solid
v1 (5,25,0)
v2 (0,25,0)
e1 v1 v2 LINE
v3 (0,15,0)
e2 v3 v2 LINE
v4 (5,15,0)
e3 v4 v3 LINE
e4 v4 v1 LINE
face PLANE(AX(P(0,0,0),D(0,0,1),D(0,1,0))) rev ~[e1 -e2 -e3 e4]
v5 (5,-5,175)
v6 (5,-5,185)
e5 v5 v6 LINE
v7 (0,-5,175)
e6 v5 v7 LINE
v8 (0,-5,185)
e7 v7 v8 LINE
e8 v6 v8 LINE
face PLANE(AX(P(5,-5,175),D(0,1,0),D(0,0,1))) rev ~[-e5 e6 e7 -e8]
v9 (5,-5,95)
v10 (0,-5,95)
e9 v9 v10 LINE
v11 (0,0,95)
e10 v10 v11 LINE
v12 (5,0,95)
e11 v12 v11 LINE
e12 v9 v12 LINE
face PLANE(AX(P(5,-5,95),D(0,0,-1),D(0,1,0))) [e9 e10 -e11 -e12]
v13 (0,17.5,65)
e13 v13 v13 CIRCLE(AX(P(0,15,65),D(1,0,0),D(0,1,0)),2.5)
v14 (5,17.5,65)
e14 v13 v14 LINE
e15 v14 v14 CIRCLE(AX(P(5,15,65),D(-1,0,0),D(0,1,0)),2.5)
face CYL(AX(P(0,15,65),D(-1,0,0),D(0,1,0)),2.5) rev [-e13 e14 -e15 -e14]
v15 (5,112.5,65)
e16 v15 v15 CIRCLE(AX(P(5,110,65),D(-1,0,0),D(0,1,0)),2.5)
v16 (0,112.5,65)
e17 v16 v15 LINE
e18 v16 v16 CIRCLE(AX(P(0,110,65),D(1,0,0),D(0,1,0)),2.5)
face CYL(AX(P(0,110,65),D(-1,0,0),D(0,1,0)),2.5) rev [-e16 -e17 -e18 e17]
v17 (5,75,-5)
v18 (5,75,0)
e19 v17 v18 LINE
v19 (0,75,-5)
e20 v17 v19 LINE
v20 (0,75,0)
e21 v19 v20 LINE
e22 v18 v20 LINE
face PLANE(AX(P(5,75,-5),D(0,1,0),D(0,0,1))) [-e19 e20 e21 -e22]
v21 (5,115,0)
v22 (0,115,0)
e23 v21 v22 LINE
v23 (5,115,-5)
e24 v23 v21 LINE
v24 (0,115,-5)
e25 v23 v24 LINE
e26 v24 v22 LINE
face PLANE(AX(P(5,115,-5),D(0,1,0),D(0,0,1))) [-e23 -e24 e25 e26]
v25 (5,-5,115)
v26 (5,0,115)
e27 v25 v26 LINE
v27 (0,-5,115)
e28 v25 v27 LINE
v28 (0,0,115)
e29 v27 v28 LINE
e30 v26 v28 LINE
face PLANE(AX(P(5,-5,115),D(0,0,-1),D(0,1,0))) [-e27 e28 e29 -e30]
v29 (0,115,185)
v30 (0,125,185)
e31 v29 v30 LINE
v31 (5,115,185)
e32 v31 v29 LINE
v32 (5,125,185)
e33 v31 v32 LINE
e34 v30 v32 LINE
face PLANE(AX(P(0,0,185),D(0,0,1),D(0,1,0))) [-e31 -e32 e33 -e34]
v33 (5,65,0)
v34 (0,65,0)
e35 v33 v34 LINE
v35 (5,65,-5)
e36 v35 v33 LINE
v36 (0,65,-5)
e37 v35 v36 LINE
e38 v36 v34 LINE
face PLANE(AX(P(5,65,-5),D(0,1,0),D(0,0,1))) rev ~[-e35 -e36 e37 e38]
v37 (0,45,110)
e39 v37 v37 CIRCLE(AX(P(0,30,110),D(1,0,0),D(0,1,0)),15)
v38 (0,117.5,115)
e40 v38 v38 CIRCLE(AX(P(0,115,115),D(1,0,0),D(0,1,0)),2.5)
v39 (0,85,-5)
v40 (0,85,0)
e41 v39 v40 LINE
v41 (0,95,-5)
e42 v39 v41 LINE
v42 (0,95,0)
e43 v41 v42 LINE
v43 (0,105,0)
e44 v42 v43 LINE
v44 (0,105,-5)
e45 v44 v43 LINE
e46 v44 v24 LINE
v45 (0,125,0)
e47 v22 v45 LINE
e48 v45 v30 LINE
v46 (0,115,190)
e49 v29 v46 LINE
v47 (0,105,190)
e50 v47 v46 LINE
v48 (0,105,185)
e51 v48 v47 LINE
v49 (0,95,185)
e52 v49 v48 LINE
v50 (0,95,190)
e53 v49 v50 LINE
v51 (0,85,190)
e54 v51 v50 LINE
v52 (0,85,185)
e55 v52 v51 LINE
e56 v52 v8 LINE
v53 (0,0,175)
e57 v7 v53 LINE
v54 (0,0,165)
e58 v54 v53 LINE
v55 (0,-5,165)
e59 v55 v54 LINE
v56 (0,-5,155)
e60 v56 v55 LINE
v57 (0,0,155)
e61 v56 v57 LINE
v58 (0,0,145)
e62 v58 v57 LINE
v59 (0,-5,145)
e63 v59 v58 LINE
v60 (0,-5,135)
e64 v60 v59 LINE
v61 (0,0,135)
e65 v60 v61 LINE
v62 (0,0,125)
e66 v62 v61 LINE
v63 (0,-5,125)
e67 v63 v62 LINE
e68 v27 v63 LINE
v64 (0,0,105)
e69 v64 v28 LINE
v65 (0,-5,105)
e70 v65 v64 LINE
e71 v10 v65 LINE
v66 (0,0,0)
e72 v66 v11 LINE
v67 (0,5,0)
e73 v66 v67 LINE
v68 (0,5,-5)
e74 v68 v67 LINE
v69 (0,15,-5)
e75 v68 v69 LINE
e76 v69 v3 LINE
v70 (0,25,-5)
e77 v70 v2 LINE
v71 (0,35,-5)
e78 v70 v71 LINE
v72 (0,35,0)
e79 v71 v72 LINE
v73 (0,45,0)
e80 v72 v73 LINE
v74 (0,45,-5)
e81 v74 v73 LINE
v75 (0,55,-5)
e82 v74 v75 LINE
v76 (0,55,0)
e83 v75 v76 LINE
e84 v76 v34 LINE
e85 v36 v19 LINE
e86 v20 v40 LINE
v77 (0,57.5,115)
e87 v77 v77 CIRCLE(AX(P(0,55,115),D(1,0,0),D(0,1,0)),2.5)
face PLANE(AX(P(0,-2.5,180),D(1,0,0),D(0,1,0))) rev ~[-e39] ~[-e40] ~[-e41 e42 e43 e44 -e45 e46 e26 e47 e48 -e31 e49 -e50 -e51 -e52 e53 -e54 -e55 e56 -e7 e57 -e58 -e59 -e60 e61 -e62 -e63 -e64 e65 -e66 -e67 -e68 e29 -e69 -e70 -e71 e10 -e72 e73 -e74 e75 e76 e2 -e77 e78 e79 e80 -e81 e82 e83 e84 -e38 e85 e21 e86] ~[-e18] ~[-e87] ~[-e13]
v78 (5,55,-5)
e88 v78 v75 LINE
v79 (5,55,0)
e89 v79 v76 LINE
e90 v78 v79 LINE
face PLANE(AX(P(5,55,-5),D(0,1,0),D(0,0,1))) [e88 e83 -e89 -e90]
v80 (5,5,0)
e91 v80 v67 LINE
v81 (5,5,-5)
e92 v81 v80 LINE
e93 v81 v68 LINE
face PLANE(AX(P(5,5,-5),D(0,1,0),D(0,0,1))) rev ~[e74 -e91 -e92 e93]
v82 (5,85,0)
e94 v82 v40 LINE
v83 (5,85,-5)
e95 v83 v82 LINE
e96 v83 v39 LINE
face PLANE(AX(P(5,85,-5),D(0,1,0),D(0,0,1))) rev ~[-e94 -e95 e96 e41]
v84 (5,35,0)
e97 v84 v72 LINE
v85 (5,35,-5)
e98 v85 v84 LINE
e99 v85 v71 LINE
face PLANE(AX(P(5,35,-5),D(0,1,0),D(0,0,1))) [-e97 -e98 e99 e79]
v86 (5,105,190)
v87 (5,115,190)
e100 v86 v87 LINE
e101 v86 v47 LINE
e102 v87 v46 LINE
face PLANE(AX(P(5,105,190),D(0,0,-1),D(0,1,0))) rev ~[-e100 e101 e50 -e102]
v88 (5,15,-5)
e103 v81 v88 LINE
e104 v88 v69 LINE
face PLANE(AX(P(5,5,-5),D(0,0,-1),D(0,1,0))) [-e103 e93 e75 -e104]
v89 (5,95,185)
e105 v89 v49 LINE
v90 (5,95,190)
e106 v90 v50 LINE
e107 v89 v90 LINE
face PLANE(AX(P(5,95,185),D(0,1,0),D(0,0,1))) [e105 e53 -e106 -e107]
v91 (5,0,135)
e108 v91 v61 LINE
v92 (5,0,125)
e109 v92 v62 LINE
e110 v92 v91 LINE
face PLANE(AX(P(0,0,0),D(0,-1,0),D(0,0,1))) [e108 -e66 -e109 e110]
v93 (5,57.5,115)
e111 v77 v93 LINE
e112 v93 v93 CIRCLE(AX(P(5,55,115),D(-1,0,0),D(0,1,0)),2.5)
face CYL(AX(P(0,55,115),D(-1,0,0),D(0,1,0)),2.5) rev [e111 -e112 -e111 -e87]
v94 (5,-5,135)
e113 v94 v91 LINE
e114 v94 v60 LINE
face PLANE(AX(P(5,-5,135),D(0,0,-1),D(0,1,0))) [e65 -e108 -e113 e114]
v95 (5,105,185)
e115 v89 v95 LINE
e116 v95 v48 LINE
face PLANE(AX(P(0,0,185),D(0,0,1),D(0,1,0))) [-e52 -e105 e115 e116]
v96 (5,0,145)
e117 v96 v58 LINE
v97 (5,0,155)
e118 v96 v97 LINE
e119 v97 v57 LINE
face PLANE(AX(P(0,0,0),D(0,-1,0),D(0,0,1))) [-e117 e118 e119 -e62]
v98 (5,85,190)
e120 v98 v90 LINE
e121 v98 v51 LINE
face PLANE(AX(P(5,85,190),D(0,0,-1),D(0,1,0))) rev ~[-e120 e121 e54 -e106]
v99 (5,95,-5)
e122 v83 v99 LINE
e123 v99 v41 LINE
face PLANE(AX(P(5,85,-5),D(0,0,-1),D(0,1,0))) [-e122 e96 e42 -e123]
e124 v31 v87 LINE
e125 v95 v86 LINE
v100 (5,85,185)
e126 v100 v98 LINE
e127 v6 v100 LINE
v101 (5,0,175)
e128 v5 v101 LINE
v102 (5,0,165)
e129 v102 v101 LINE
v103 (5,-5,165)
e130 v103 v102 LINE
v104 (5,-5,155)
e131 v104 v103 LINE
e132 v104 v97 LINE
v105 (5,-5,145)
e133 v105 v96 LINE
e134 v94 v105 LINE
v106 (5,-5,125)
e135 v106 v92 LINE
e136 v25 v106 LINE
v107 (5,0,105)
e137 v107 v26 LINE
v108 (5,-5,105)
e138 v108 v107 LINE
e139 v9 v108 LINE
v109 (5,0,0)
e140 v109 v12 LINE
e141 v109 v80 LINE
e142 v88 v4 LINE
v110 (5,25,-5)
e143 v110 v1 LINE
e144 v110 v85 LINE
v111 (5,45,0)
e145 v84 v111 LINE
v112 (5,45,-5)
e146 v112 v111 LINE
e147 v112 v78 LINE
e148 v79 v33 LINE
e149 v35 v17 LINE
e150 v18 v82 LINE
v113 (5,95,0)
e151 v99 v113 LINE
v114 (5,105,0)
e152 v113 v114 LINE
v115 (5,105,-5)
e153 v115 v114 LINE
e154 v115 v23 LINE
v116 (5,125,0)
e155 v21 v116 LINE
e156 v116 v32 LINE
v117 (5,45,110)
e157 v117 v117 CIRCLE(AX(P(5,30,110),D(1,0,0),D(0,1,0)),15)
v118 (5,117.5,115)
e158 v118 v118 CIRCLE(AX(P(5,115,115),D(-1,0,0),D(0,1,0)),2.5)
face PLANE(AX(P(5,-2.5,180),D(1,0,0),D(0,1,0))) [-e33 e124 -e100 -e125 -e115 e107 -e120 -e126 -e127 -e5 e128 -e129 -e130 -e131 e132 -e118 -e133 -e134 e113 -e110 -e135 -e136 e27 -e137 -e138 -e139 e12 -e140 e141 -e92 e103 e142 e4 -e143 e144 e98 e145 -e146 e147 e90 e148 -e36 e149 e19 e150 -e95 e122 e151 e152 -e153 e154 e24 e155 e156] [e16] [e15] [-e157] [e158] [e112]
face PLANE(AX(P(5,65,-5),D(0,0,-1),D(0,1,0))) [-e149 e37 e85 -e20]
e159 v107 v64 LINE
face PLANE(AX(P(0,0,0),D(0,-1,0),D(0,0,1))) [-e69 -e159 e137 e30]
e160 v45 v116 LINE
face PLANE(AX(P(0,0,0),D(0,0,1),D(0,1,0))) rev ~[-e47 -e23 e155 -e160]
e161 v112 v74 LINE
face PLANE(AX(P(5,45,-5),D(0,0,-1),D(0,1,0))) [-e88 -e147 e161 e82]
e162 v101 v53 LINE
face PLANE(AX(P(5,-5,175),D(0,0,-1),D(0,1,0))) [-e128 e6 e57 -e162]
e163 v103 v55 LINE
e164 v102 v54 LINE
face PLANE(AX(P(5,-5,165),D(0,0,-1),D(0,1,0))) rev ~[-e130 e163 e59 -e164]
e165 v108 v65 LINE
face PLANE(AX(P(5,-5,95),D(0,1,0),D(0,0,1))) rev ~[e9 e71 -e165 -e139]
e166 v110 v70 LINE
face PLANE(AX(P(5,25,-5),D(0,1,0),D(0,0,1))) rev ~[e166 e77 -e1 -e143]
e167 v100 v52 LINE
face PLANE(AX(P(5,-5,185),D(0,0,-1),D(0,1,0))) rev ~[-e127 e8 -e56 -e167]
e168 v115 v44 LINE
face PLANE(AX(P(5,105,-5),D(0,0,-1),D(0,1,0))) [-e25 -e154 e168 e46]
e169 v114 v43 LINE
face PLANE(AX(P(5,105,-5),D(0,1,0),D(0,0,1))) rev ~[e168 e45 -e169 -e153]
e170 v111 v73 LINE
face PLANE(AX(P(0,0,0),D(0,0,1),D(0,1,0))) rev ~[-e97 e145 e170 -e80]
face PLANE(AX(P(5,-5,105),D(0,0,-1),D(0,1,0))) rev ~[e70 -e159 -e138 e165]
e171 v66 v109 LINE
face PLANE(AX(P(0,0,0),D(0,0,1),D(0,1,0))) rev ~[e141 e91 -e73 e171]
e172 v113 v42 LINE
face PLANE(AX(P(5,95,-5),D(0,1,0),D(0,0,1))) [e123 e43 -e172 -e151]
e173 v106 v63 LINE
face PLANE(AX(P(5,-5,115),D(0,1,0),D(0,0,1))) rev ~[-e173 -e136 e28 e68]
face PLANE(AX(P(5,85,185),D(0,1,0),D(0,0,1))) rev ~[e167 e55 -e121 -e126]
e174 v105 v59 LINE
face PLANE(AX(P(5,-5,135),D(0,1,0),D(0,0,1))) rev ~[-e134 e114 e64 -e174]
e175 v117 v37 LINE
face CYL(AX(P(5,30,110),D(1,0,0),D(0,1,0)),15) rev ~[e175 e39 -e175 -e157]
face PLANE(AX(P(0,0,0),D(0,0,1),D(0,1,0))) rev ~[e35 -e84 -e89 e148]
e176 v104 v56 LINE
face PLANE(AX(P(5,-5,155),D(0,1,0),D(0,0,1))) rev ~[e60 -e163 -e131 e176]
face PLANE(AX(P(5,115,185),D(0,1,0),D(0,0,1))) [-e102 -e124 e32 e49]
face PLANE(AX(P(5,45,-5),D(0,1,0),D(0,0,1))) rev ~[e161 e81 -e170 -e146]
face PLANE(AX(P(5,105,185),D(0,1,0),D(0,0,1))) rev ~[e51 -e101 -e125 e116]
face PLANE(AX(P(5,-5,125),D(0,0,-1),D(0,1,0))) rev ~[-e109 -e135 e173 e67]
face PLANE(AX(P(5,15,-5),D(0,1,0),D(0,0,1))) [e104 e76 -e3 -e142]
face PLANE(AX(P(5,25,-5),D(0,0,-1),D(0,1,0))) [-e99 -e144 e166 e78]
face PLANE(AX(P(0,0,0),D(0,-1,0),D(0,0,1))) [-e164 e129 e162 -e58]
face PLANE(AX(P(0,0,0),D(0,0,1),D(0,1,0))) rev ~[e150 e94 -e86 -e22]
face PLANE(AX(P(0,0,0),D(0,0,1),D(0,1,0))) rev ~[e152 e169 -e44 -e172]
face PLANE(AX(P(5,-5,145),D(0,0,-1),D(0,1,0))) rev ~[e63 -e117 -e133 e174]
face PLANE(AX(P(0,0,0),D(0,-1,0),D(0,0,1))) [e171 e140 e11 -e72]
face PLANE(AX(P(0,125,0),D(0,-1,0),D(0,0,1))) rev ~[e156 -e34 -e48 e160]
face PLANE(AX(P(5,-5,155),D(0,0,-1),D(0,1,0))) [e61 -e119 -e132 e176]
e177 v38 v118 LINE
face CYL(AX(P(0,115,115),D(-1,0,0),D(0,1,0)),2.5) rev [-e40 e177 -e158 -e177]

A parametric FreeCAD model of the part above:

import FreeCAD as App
import Part
import Sketcher

V = App.Vector


def add_polygon(sketch, points):
    """Adds a closed chain of lines whose ends are joined by coincident constraints."""
    first, n = sketch.GeometryCount, len(points)
    for a, b in zip(points, points[1:] + points[:1]):
        sketch.addGeometry(Part.LineSegment(App.Vector(*a, 0), App.Vector(*b, 0)), False)
    for i in range(n):
        sketch.addConstraint(Sketcher.Constraint("Coincident", first + i, 2, first + (i + 1) % n, 1))

doc = App.newDocument("Part")
body = doc.addObject("PartDesign::Body", "Body")

# Sketch on YZ plane
sketch1 = body.newObject("Sketcher::SketchObject", "Sketch")
sketch1.AttachmentSupport = (doc.getObject("YZ_Plane"), [""])
sketch1.MapMode = "FlatFace"
add_polygon(sketch1, [(0, 185), (0, 0), (125, 0), (125, 185)])  # lines 0-3
sketch1.addConstraint([
    Sketcher.Constraint("Vertical", 0),
    Sketcher.Constraint("Horizontal", 1),
    Sketcher.Constraint("Vertical", 2),
    Sketcher.Constraint("Horizontal", 3),
    Sketcher.Constraint("Coincident", 0, 2, -1, 1),
    Sketcher.Constraint("DistanceX", 1, 1, 1, 2, 125.0),
    Sketcher.Constraint("DistanceY", 0, 2, 0, 1, 185.0),
])
pad1 = body.newObject("PartDesign::Pad", "Pad")
pad1.Profile = sketch1
pad1.Length = 5

# Sketch on YZ plane
sketch2 = body.newObject("Sketcher::SketchObject", "Sketch001")
sketch2.AttachmentSupport = (doc.getObject("YZ_Plane"), [""])
sketch2.MapMode = "FlatFace"
sketch2.AttachmentOffset = App.Placement(V(0, 0, 5), App.Rotation())
add_polygon(sketch2, [(105, 190), (105, 185), (115, 185), (115, 190)])  # lines 0-3
add_polygon(sketch2, [(85, 190), (85, 185), (95, 185), (95, 190)])  # lines 4-7
sketch2.addConstraint([
    Sketcher.Constraint("Vertical", 0),
    Sketcher.Constraint("Horizontal", 1),
    Sketcher.Constraint("Vertical", 2),
    Sketcher.Constraint("Horizontal", 3),
    Sketcher.Constraint("Vertical", 4),
    Sketcher.Constraint("Horizontal", 5),
    Sketcher.Constraint("Vertical", 6),
    Sketcher.Constraint("Horizontal", 7),
    Sketcher.Constraint("Horizontal", 1, 2, 4, 2),
    Sketcher.Constraint("Horizontal", 3, 2, 6, 2),
    Sketcher.Constraint("Equal", 3, 5),
    Sketcher.Constraint("DistanceX", 1, 1, 1, 2, 10.0),
    Sketcher.Constraint("DistanceY", 0, 2, 0, 1, 5.0),
    Sketcher.Constraint("DistanceX", -1, 1, 0, 2, 105.0),
    Sketcher.Constraint("DistanceY", -1, 1, 0, 2, 185.0),
    Sketcher.Constraint("DistanceX", -1, 1, 4, 2, 85.0),
])
pad2 = body.newObject("PartDesign::Pad", "Pad001")
pad2.Profile = sketch2
pad2.Length = 5
pad2.Reversed = True

# Sketch on YZ plane
sketch3 = body.newObject("Sketcher::SketchObject", "Sketch002")
sketch3.AttachmentSupport = (doc.getObject("YZ_Plane"), [""])
sketch3.MapMode = "FlatFace"
sketch3.AttachmentOffset = App.Placement(V(0, 0, 5), App.Rotation())
add_polygon(sketch3, [(5, 0), (5, -5), (15, -5), (15, 0)])  # lines 0-3
add_polygon(sketch3, [(25, 0), (25, -5), (35, -5), (35, 0)])  # lines 4-7
add_polygon(sketch3, [(45, 0), (45, -5), (55, -5), (55, 0)])  # lines 8-11
add_polygon(sketch3, [(65, 0), (65, -5), (75, -5), (75, 0)])  # lines 12-15
add_polygon(sketch3, [(85, 0), (85, -5), (95, -5), (95, 0)])  # lines 16-19
add_polygon(sketch3, [(105, 0), (105, -5), (115, -5), (115, 0)])  # lines 20-23
sketch3.addConstraint([
    Sketcher.Constraint("Vertical", 0),
    Sketcher.Constraint("Horizontal", 1),
    Sketcher.Constraint("Vertical", 2),
    Sketcher.Constraint("Horizontal", 3),
    Sketcher.Constraint("Vertical", 4),
    Sketcher.Constraint("Horizontal", 5),
    Sketcher.Constraint("Vertical", 6),
    Sketcher.Constraint("Horizontal", 7),
    Sketcher.Constraint("Vertical", 8),
    Sketcher.Constraint("Horizontal", 9),
    Sketcher.Constraint("Vertical", 10),
    Sketcher.Constraint("Horizontal", 11),
    Sketcher.Constraint("Vertical", 12),
    Sketcher.Constraint("Horizontal", 13),
    Sketcher.Constraint("Vertical", 14),
    Sketcher.Constraint("Horizontal", 15),
    Sketcher.Constraint("Vertical", 16),
    Sketcher.Constraint("Horizontal", 17),
    Sketcher.Constraint("Vertical", 18),
    Sketcher.Constraint("Horizontal", 19),
    Sketcher.Constraint("Vertical", 20),
    Sketcher.Constraint("Horizontal", 21),
    Sketcher.Constraint("Vertical", 22),
    Sketcher.Constraint("Horizontal", 23),
    Sketcher.Constraint("PointOnObject", 2, 2, -1),
    Sketcher.Constraint("PointOnObject", 6, 2, -1),
    Sketcher.Constraint("PointOnObject", 10, 2, -1),
    Sketcher.Constraint("PointOnObject", 14, 2, -1),
    Sketcher.Constraint("PointOnObject", 18, 2, -1),
    Sketcher.Constraint("PointOnObject", 22, 2, -1),
    Sketcher.Constraint("Horizontal", 1, 2, 4, 2),
    Sketcher.Constraint("Horizontal", 5, 2, 8, 2),
    Sketcher.Constraint("Horizontal", 9, 2, 12, 2),
    Sketcher.Constraint("Horizontal", 13, 2, 16, 2),
    Sketcher.Constraint("Horizontal", 17, 2, 20, 2),
    Sketcher.Constraint("Equal", 3, 5),
    Sketcher.Constraint("Equal", 7, 9),
    Sketcher.Constraint("Equal", 11, 13),
    Sketcher.Constraint("Equal", 15, 17),
    Sketcher.Constraint("Equal", 19, 21),
    Sketcher.Constraint("DistanceX", 1, 1, 1, 2, 10.0),
    Sketcher.Constraint("DistanceY", 0, 2, 0, 1, 5.0),
    Sketcher.Constraint("DistanceX", -1, 1, 0, 2, 5.0),
    Sketcher.Constraint("DistanceX", -1, 1, 4, 2, 25.0),
    Sketcher.Constraint("DistanceX", -1, 1, 8, 2, 45.0),
    Sketcher.Constraint("DistanceX", -1, 1, 12, 2, 65.0),
    Sketcher.Constraint("DistanceX", -1, 1, 16, 2, 85.0),
    Sketcher.Constraint("DistanceX", -1, 1, 20, 2, 105.0),
])
pad3 = body.newObject("PartDesign::Pad", "Pad002")
pad3.Profile = sketch3
pad3.Length = 5
pad3.Reversed = True

# Sketch on YZ plane
sketch4 = body.newObject("Sketcher::SketchObject", "Sketch003")
sketch4.AttachmentSupport = (doc.getObject("YZ_Plane"), [""])
sketch4.MapMode = "FlatFace"
sketch4.AttachmentOffset = App.Placement(V(0, 0, 5), App.Rotation())
add_polygon(sketch4, [(-5, 185), (-5, 175), (0, 175), (0, 185)])  # lines 0-3
add_polygon(sketch4, [(-5, 165), (-5, 155), (0, 155), (0, 165)])  # lines 4-7
add_polygon(sketch4, [(-5, 145), (-5, 135), (0, 135), (0, 145)])  # lines 8-11
add_polygon(sketch4, [(-5, 125), (-5, 115), (0, 115), (0, 125)])  # lines 12-15
add_polygon(sketch4, [(-5, 105), (-5, 95), (0, 95), (0, 105)])  # lines 16-19
sketch4.addConstraint([
    Sketcher.Constraint("Vertical", 0),
    Sketcher.Constraint("Horizontal", 1),
    Sketcher.Constraint("Vertical", 2),
    Sketcher.Constraint("Horizontal", 3),
    Sketcher.Constraint("Vertical", 4),
    Sketcher.Constraint("Horizontal", 5),
    Sketcher.Constraint("Vertical", 6),
    Sketcher.Constraint("Horizontal", 7),
    Sketcher.Constraint("Vertical", 8),
    Sketcher.Constraint("Horizontal", 9),
    Sketcher.Constraint("Vertical", 10),
    Sketcher.Constraint("Horizontal", 11),
    Sketcher.Constraint("Vertical", 12),
    Sketcher.Constraint("Horizontal", 13),
    Sketcher.Constraint("Vertical", 14),
    Sketcher.Constraint("Horizontal", 15),
    Sketcher.Constraint("Vertical", 16),
    Sketcher.Constraint("Horizontal", 17),
    Sketcher.Constraint("Vertical", 18),
    Sketcher.Constraint("Horizontal", 19),
    Sketcher.Constraint("PointOnObject", 1, 2, -2),
    Sketcher.Constraint("PointOnObject", 5, 2, -2),
    Sketcher.Constraint("PointOnObject", 9, 2, -2),
    Sketcher.Constraint("PointOnObject", 13, 2, -2),
    Sketcher.Constraint("PointOnObject", 17, 2, -2),
    Sketcher.Constraint("Vertical", 3, 2, 4, 2),
    Sketcher.Constraint("Vertical", 7, 2, 8, 2),
    Sketcher.Constraint("Vertical", 11, 2, 12, 2),
    Sketcher.Constraint("Vertical", 15, 2, 16, 2),
    Sketcher.Constraint("Equal", 2, 4),
    Sketcher.Constraint("Equal", 6, 8),
    Sketcher.Constraint("Equal", 10, 12),
    Sketcher.Constraint("Equal", 14, 16),
    Sketcher.Constraint("DistanceX", 1, 1, 1, 2, 5.0),
    Sketcher.Constraint("DistanceY", 0, 2, 0, 1, 10.0),
    Sketcher.Constraint("DistanceY", -1, 1, 0, 2, 175.0),
    Sketcher.Constraint("DistanceY", -1, 1, 4, 2, 155.0),
    Sketcher.Constraint("DistanceY", -1, 1, 8, 2, 135.0),
    Sketcher.Constraint("DistanceY", -1, 1, 12, 2, 115.0),
    Sketcher.Constraint("DistanceY", -1, 1, 16, 2, 95.0),
])
pad4 = body.newObject("PartDesign::Pad", "Pad003")
pad4.Profile = sketch4
pad4.Length = 5
pad4.Reversed = True

# Sketch on YZ plane
sketch5 = body.newObject("Sketcher::SketchObject", "Sketch004")
sketch5.AttachmentSupport = (doc.getObject("YZ_Plane"), [""])
sketch5.MapMode = "FlatFace"
sketch5.AttachmentOffset = App.Placement(V(0, 0, 5), App.Rotation())
sketch5.addGeometry(Part.Circle(V(30, 110, 0), V(0, 0, 1), 15), False)
sketch5.addConstraint([
    Sketcher.Constraint("Diameter", 0, 30.0),
    Sketcher.Constraint("DistanceX", -1, 1, 0, 3, 30.0),
    Sketcher.Constraint("DistanceY", -1, 1, 0, 3, 110.0),
])
pocket1 = body.newObject("PartDesign::Pocket", "Pocket")
pocket1.Profile = sketch5
pocket1.Type = "ThroughAll"

# Sketch on YZ plane
sketch6 = body.newObject("Sketcher::SketchObject", "Sketch005")
sketch6.AttachmentSupport = (doc.getObject("YZ_Plane"), [""])
sketch6.MapMode = "FlatFace"
sketch6.addGeometry([
    Part.Circle(V(15, 65, 0), V(0, 0, 1), 2.5),
    Part.Circle(V(110, 65, 0), V(0, 0, 1), 2.5),
], False)
sketch6.addConstraint([
    Sketcher.Constraint("Equal", 0, 1),
    Sketcher.Constraint("Horizontal", 0, 3, 1, 3),
    Sketcher.Constraint("Diameter", 0, 5.0),
    Sketcher.Constraint("DistanceX", -1, 1, 0, 3, 15.0),
    Sketcher.Constraint("DistanceY", -1, 1, 0, 3, 65.0),
    Sketcher.Constraint("DistanceX", -1, 1, 1, 3, 110.0),
])
pocket2 = body.newObject("PartDesign::Pocket", "Pocket001")
pocket2.Profile = sketch6
pocket2.Type = "ThroughAll"
pocket2.Midplane = True

# Sketch on YZ plane
sketch7 = body.newObject("Sketcher::SketchObject", "Sketch006")
sketch7.AttachmentSupport = (doc.getObject("YZ_Plane"), [""])
sketch7.MapMode = "FlatFace"
sketch7.addGeometry([
    Part.Circle(V(55, 115, 0), V(0, 0, 1), 2.5),
    Part.Circle(V(115, 115, 0), V(0, 0, 1), 2.5),
], False)
sketch7.addConstraint([
    Sketcher.Constraint("Equal", 0, 1),
    Sketcher.Constraint("Horizontal", 0, 3, 1, 3),
    Sketcher.Constraint("Diameter", 0, 5.0),
    Sketcher.Constraint("DistanceX", -1, 1, 0, 3, 55.0),
    Sketcher.Constraint("DistanceY", -1, 1, 0, 3, 115.0),
    Sketcher.Constraint("DistanceX", -1, 1, 1, 3, 115.0),
])
pocket3 = body.newObject("PartDesign::Pocket", "Pocket002")
pocket3.Profile = sketch7
pocket3.Type = "ThroughAll"
pocket3.Midplane = True

doc.recompute()
